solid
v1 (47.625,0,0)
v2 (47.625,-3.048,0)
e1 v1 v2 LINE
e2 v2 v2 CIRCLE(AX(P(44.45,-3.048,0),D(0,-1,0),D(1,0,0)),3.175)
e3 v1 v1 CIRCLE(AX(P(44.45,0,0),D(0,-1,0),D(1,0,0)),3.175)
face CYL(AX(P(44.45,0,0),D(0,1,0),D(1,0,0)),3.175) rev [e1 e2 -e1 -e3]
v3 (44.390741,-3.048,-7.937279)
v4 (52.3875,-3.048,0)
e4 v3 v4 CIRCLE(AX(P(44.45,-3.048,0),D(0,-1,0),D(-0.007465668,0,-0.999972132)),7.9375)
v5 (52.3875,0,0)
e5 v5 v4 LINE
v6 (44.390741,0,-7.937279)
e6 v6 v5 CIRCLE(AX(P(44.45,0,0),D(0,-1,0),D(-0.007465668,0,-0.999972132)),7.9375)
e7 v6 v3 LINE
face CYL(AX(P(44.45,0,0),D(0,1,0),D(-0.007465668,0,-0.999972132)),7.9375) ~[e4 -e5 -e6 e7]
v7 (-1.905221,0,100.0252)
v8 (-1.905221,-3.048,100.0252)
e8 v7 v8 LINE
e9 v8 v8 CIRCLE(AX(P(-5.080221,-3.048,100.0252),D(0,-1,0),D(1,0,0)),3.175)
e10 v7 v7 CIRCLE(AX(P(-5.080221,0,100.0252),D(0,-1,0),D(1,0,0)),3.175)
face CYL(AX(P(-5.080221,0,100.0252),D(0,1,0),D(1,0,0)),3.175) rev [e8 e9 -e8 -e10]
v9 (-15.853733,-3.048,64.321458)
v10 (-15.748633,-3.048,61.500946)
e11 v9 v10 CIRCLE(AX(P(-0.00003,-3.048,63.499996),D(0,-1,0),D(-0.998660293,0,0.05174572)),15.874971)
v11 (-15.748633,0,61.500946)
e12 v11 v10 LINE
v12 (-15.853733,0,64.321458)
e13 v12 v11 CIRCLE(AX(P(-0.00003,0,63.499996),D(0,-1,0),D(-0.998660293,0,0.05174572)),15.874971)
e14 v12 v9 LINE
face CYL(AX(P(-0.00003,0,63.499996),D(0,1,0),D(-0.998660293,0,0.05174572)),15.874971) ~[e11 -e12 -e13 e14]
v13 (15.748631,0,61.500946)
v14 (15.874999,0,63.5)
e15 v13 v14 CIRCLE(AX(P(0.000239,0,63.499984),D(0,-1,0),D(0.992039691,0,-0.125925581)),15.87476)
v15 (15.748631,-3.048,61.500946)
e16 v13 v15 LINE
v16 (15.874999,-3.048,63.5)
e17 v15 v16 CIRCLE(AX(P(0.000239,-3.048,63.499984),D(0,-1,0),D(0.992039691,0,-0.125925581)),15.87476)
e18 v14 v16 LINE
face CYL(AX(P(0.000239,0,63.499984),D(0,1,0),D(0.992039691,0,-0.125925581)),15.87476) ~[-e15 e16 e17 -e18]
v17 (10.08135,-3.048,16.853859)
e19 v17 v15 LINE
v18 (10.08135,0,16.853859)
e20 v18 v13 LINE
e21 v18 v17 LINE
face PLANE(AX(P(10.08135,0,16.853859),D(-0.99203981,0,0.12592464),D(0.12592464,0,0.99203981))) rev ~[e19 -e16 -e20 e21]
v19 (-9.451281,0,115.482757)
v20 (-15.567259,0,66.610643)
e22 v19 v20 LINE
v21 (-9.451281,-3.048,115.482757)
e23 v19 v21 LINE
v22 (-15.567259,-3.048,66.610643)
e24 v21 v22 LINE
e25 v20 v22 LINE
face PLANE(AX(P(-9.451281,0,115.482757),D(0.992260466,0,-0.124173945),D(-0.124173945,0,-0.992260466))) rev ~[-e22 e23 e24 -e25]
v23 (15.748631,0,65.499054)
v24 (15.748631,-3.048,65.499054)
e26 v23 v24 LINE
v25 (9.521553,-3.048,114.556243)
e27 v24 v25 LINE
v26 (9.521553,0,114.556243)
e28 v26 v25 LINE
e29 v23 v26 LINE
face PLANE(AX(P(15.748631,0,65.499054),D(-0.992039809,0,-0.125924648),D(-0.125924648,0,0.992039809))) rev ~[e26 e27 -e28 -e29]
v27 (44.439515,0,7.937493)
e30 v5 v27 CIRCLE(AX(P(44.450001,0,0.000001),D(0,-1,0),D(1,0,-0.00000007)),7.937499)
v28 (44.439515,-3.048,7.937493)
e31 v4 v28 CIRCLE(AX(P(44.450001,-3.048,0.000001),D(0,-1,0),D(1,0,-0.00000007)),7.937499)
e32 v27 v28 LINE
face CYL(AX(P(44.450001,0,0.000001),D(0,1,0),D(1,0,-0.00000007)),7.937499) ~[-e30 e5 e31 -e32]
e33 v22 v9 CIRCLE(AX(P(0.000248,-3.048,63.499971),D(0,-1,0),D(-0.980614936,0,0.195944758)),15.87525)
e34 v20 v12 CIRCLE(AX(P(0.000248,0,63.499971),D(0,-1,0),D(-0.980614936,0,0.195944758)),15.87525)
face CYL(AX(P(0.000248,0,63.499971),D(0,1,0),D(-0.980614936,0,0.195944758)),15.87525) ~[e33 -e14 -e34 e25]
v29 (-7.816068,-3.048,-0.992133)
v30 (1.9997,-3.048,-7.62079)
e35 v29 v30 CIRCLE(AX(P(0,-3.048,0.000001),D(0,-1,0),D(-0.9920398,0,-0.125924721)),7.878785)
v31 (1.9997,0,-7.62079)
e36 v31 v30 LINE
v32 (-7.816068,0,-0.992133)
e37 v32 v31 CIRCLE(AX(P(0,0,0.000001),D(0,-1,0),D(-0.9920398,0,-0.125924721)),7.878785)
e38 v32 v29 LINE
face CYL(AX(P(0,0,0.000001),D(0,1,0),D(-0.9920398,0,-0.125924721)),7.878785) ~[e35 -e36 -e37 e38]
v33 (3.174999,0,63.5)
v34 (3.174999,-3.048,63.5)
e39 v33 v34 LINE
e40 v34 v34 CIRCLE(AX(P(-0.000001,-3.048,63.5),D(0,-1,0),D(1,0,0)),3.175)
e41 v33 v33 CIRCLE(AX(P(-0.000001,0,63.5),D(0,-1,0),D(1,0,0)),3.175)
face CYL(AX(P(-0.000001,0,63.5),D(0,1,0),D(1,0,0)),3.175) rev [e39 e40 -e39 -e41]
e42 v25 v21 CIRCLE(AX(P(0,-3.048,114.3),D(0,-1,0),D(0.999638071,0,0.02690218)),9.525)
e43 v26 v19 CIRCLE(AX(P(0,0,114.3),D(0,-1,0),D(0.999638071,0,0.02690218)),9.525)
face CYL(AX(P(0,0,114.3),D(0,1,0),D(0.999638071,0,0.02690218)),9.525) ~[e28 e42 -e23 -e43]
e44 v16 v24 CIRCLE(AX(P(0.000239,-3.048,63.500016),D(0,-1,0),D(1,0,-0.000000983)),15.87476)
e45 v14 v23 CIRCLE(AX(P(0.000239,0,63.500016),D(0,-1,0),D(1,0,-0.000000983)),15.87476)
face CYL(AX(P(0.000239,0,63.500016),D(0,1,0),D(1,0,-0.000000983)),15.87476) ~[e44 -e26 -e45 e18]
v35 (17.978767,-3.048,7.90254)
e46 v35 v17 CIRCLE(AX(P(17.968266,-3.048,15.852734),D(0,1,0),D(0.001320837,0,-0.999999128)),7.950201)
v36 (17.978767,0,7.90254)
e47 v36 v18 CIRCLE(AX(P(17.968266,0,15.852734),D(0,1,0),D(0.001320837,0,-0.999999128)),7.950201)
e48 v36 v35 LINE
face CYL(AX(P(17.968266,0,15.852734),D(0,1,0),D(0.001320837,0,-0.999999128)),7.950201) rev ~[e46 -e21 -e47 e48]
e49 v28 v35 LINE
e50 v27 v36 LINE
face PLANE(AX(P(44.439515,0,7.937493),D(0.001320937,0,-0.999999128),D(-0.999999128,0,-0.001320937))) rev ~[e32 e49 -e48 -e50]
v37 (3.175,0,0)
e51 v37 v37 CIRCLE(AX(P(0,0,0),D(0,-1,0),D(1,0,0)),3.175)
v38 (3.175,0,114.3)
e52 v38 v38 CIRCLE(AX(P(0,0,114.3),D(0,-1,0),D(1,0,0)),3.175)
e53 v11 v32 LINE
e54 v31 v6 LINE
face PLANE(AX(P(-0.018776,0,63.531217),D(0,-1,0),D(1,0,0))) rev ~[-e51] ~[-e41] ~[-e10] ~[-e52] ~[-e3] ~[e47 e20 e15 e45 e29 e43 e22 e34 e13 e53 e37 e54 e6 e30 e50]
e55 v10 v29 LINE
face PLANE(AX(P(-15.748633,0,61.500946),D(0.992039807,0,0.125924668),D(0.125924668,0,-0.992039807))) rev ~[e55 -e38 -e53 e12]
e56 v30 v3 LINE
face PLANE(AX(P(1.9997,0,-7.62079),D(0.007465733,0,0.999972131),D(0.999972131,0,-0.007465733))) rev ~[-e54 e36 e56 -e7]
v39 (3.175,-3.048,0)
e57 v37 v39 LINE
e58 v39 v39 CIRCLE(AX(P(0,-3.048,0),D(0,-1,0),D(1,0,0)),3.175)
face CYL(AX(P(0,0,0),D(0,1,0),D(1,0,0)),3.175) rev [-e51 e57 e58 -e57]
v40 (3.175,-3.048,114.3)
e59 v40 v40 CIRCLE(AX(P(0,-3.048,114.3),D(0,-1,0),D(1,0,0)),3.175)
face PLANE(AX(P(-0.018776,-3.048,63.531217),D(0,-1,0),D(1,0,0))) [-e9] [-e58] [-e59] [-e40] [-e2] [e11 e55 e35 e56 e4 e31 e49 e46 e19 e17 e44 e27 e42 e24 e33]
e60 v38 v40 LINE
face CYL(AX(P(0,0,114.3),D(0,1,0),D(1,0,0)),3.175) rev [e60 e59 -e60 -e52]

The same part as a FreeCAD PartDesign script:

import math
import FreeCAD as App
import Part
import Sketcher

V = App.Vector
Q = App.Units.Quantity

doc = App.newDocument("Part")
params = doc.addObject("Spreadsheet::Sheet", "Params")
for row, (alias, value) in enumerate([
    ("sketch1_diameter", "0.25 in"),
    ("sketch1_diameter2", "0.25 in"),
    ("sketch1_diameter3", "0.25 in"),
    ("sketch1_diameter4", "0.25 in"),
    ("sketch1_diameter5", "0.25 in"),
    ("pad1_length", "0.12 in"),
], start=1):
    params.set(f"A{row}", alias)
    params.set(f"B{row}", "=" + value)
    params.setAlias(f"B{row}", alias)

body = doc.addObject("PartDesign::Body", "Body")

sketch1 = body.newObject("Sketcher::SketchObject", "Sketch")
sketch1.AttachmentSupport = (doc.getObject("XZ_Plane"), [""])
sketch1.MapMode = "FlatFace"
sketch1.addGeometry([
    Part.ArcOfCircle(Part.Circle(V(0.000239, 63.499984, 0), V(0, 0, 1), 15.87476), math.radians(-7.23421), math.radians(0.000056)),
    Part.ArcOfCircle(Part.Circle(V(0.000239, 63.500016, 0), V(0, 0, 1), 15.87476), math.radians(-0.000056), math.radians(7.23421)),
    Part.LineSegment(V(15.748631, 65.499054, 0), V(9.521553, 114.556243, 0)),
    Part.ArcOfCircle(Part.Circle(V(0, 114.3, 0), V(0, 0, 1), 9.525), math.radians(1.541567), math.radians(172.866943)),
    Part.LineSegment(V(-9.451281, 115.482757, 0), V(-15.567259, 66.610643, 0)),
    Part.ArcOfCircle(Part.Circle(V(0.000248, 63.499971, 0), V(0, 0, 1), 15.87525), math.radians(168.700081), math.radians(177.033825)),
    Part.ArcOfCircle(Part.Circle(V(-0.00003, 63.499996, 0), V(0, 0, 1), 15.874971), math.radians(177.033864), math.radians(187.234157)),
    Part.LineSegment(V(-15.748633, 61.500946, 0), V(-7.816068, -0.992133, 0)),
    Part.ArcOfCircle(Part.Circle(V(0, 0.000001, 0), V(0, 0, 1), 7.878785), math.radians(-172.76584), math.radians(-75.297026)),
    Part.LineSegment(V(1.9997, -7.62079, 0), V(44.390741, -7.937279, 0)),
    Part.ArcOfCircle(Part.Circle(V(44.45, 0, 0), V(0, 0, 1), 7.9375), math.radians(-90.427755), math.radians(0)),
    Part.ArcOfCircle(Part.Circle(V(44.450001, 0.000001, 0), V(0, 0, 1), 7.937499), math.radians(-0.000004), math.radians(90.075689)),
    Part.LineSegment(V(44.439515, 7.937493, 0), V(17.978767, 7.90254, 0)),
    Part.ArcOfCircle(Part.Circle(V(17.968266, 15.852734, 0), V(0, 0, 1), 7.950201), math.radians(172.765854), math.radians(270.075678)),
    Part.LineSegment(V(10.08135, 16.853859, 0), V(15.748631, 61.500946, 0)),
    Part.Circle(V(0, 0, 0), V(0, 0, 1), 3.175),
    Part.Circle(V(44.45, 0, 0), V(0, 0, 1), 3.175),
    Part.Circle(V(-0.000001, 63.5, 0), V(0, 0, 1), 3.175),
    Part.Circle(V(-5.080221, 100.0252, 0), V(0, 0, 1), 3.175),
    Part.Circle(V(0, 114.3, 0), V(0, 0, 1), 3.175),
], False)
sketch1.addConstraint([
    Sketcher.Constraint("Coincident", 0, 2, 1, 1),
    Sketcher.Constraint("Coincident", 1, 2, 2, 1),
    Sketcher.Constraint("Coincident", 2, 2, 3, 1),
    Sketcher.Constraint("Coincident", 3, 2, 4, 1),
    Sketcher.Constraint("Coincident", 4, 2, 5, 1),
    Sketcher.Constraint("Coincident", 5, 2, 6, 1),
    Sketcher.Constraint("Coincident", 6, 2, 7, 1),
    Sketcher.Constraint("Coincident", 7, 2, 8, 1),
    Sketcher.Constraint("Coincident", 8, 2, 9, 1),
    Sketcher.Constraint("Coincident", 9, 2, 10, 1),
    Sketcher.Constraint("Coincident", 10, 2, 11, 1),
    Sketcher.Constraint("Coincident", 11, 2, 12, 1),
    Sketcher.Constraint("Coincident", 12, 2, 13, 2),
    Sketcher.Constraint("Coincident", 13, 1, 14, 1),
    Sketcher.Constraint("Coincident", 14, 2, 0, 1),
    Sketcher.Constraint("Coincident", 8, 3, -1, 1),
    Sketcher.Constraint("Coincident", 15, 3, -1, 1),
    Sketcher.Constraint("Coincident", 11, 3, 10, 3),
    Sketcher.Constraint("Coincident", 16, 3, 10, 3),
    Sketcher.Constraint("Coincident", 19, 3, 3, 3),
    Sketcher.Constraint("PointOnObject", 3, 3, -2),
    Sketcher.Constraint("PointOnObject", 10, 3, -1),
    Sketcher.Constraint("PointOnObject", 17, 3, -2),
    Sketcher.Constraint("PointOnObject", 10, 2, -1),
    Sketcher.Constraint("Diameter", 15, Q("0.25 in")),
    Sketcher.Constraint("Diameter", 16, Q("0.25 in")),
    Sketcher.Constraint("Diameter", 17, Q("0.25 in")),
    Sketcher.Constraint("Diameter", 18, Q("0.25 in")),
    Sketcher.Constraint("Diameter", 19, Q("0.25 in")),
    Sketcher.Constraint("Radius", 3, Q("0.375 in")),
    Sketcher.Constraint("Radius", 10, Q("0.3125 in")),
    Sketcher.Constraint("Radius", 13, Q("0.313 in")),
    Sketcher.Constraint("DistanceY", 6, 3, 3, 3, Q("2.0000001 in")),
    Sketcher.Constraint("DistanceY", 17, 3, 3, 3, Q("2 in")),
    Sketcher.Constraint("DistanceY", -1, 1, 3, 3, Q("4.5 in")),
    Sketcher.Constraint("DistanceY", -1, 1, 0, 2, Q("2.5 in")),
    Sketcher.Constraint("DistanceX", -1, 1, 10, 3, Q("1.75 in")),
    Sketcher.Constraint("DistanceY", -1, 1, 18, 3, Q("3.938 in")),
    Sketcher.Constraint("DistanceX", -1, 1, 0, 2, Q("0.625 in")),
    Sketcher.Constraint("Radius", 0, 15.87476),
    Sketcher.Constraint("Radius", 1, 15.87476),
    Sketcher.Constraint("Radius", 5, 15.87525),
    Sketcher.Constraint("Radius", 6, 15.874971),
    Sketcher.Constraint("Radius", 8, 7.878785),
    Sketcher.Constraint("DistanceX", -1, 1, 8, 2, 1.9997),
    Sketcher.Constraint("DistanceX", 5, 2, 6, 2, 0.1051),
    Sketcher.Constraint("DistanceX", 13, 3, 12, 2, 0.010501),
    Sketcher.Constraint("Distance", 4, 49.253312),
    Sketcher.Constraint("Distance", 12, 26.460771),
    Sketcher.Constraint("Distance", 14, 45.005338),
    Sketcher.Constraint("DistanceX", -1, 1, 5, 3, 0.000248),
    Sketcher.Constraint("DistanceY", -1, 1, 5, 3, 63.499971),
    Sketcher.Constraint("DistanceX", 18, 3, -1, 1, 5.080221),
    Sketcher.Constraint("DistanceX", -1, 1, 1, 2, 15.748631),
    Sketcher.Constraint("DistanceX", 3, 2, -1, 1, 9.451281),
    Sketcher.Constraint("DistanceY", -1, 1, 5, 2, 64.321458),
    Sketcher.Constraint("DistanceX", -1, 1, 9, 2, 44.390741),
    Sketcher.Constraint("DistanceY", -1, 1, 12, 2, 7.90254),
    Sketcher.Constraint("DistanceX", -1, 1, 13, 1, 10.08135),
    Sketcher.Constraint("DistanceY", -1, 1, 13, 1, 16.853859),
    Sketcher.Constraint("DistanceX", -1, 1, 14, 2, 15.748631),
    Sketcher.Constraint("DistanceY", 0, 3, 1, 2, 1.99907),
    Sketcher.Constraint("DistanceY", 1, 2, 2, 2, 49.057189),
    Sketcher.Constraint("DistanceX", 7, 2, 8, 3, 7.816068),
])
sketch1.setExpression("Constraints[24]", "Params.sketch1_diameter")
sketch1.setExpression("Constraints[25]", "Params.sketch1_diameter2")
sketch1.setExpression("Constraints[26]", "Params.sketch1_diameter3")
sketch1.setExpression("Constraints[27]", "Params.sketch1_diameter4")
sketch1.setExpression("Constraints[28]", "Params.sketch1_diameter5")
pad1 = body.newObject("PartDesign::Pad", "Pad")
pad1.Profile = sketch1
pad1.setExpression("Length", "Params.pad1_length")

doc.recompute()
